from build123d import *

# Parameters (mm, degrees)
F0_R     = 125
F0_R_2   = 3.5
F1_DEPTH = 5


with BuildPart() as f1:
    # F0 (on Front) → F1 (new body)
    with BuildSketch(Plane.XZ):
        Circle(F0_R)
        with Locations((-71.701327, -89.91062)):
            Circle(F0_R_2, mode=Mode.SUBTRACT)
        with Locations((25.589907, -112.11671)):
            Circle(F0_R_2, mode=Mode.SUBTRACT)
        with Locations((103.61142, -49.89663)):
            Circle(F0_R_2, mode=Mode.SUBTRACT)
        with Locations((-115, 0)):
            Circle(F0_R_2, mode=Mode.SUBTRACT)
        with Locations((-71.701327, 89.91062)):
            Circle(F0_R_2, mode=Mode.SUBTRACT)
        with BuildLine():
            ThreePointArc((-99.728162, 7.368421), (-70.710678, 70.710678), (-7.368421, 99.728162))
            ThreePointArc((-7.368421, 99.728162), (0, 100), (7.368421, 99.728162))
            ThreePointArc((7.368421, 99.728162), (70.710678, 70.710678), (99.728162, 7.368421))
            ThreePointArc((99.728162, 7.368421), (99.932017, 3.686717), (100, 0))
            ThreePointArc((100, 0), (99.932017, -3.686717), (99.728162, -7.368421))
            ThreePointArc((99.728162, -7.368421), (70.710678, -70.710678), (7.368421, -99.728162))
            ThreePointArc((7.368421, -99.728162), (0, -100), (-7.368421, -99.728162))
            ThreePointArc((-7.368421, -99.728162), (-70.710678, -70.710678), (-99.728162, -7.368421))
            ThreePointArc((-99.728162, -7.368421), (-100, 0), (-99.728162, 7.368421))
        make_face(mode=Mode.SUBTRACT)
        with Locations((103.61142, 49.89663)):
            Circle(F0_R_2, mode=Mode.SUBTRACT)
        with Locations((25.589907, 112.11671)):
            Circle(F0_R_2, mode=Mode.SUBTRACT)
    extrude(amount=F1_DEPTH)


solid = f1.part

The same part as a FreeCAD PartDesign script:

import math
import FreeCAD as App
import Part
import Sketcher

V = App.Vector
Q = App.Units.Quantity

doc = App.newDocument("Part")
params = doc.addObject("Spreadsheet::Sheet", "Params")
for row, (alias, value) in enumerate([
    ("sketch1_diameter", "250 mm"),
    ("sketch1_diameter2", "7 mm"),
    ("sketch1_diameter3", "7 mm"),
    ("sketch1_diameter4", "7 mm"),
    ("sketch1_diameter5", "7 mm"),
    ("pad1_length", "5 mm"),
], start=1):
    params.set(f"A{row}", alias)
    params.set(f"B{row}", "=" + value)
    params.setAlias(f"B{row}", alias)

body = doc.addObject("PartDesign::Body", "Body")

# Sketch on XZ plane
sketch1 = body.newObject("Sketcher::SketchObject", "Sketch")
sketch1.AttachmentSupport = (doc.getObject("XZ_Plane"), [""])
sketch1.MapMode = "FlatFace"
sketch1.addGeometry([
    Part.Circle(V(0, 0, 0), V(0, 0, 1), 125),  # 0
    Part.Circle(V(-71.701327, -89.91062, 0), V(0, 0, 1), 3.5),  # 1
    Part.Circle(V(-115, 0, 0), V(0, 0, 1), 3.5),  # 2
    Part.Circle(V(25.589907, -112.11671, 0), V(0, 0, 1), 3.5),  # 3
    Part.ArcOfCircle(Part.Circle(V(-0.00014, 0, 0), V(0, 0, 1), 99.99986), math.radians(175.77437), math.radians(184.22563)),  # 4
    Part.ArcOfCircle(Part.Circle(V(-0.000001, 0.000001, 0), V(0, 0, 1), 99.999999), math.radians(94.225624), math.radians(175.774376)),  # 5
    Part.ArcOfCircle(Part.Circle(V(0, 0.00014, 0), V(0, 0, 1), 99.99986), math.radians(85.77437), math.radians(94.22563)),  # 6
    Part.ArcOfCircle(Part.Circle(V(0.000001, 0.000001, 0), V(0, 0, 1), 99.999999), math.radians(4.225624), math.radians(85.774376)),  # 7
    Part.ArcOfCircle(Part.Circle(V(-0.000426, -0.000021, 0), V(0, 0, 1), 100.000426), math.radians(0.000012), math.radians(4.225618)),  # 8
    Part.ArcOfCircle(Part.Circle(V(-0.000426, 0.000021, 0), V(0, 0, 1), 100.000426), math.radians(-4.225618), math.radians(-0.000012)),  # 9
    Part.ArcOfCircle(Part.Circle(V(0.000001, -0.000001, 0), V(0, 0, 1), 99.999999), math.radians(-85.774376), math.radians(-4.225624)),  # 10
    Part.ArcOfCircle(Part.Circle(V(0, -0.00014, 0), V(0, 0, 1), 99.99986), math.radians(-94.22563), math.radians(-85.77437)),  # 11
    Part.ArcOfCircle(Part.Circle(V(-0.000001, -0.000001, 0), V(0, 0, 1), 99.999999), math.radians(-175.774376), math.radians(-94.225624)),  # 12
    Part.Circle(V(103.61142, -49.89663, 0), V(0, 0, 1), 3.5),  # 13
    Part.Circle(V(-71.701327, 89.91062, 0), V(0, 0, 1), 3.5),  # 14
    Part.Circle(V(103.61142, 49.89663, 0), V(0, 0, 1), 3.5),  # 15
    Part.Circle(V(25.589907, 112.11671, 0), V(0, 0, 1), 3.5),  # 16
], False)
sketch1.addConstraint([
    Sketcher.Constraint("Coincident", 4, 1, 5, 2),
    Sketcher.Constraint("Coincident", 5, 1, 6, 2),
    Sketcher.Constraint("Coincident", 6, 1, 7, 2),
    Sketcher.Constraint("Coincident", 7, 1, 8, 2),
    Sketcher.Constraint("Coincident", 8, 1, 9, 2),
    Sketcher.Constraint("Coincident", 9, 1, 10, 2),
    Sketcher.Constraint("Coincident", 10, 1, 11, 2),
    Sketcher.Constraint("Coincident", 11, 1, 12, 2),
    Sketcher.Constraint("Coincident", 12, 1, 4, 2),
    Sketcher.Constraint("Coincident", 0, 3, -1, 1),
    Sketcher.Constraint("Coincident", 5, 3, -1, 1),
    Sketcher.Constraint("Coincident", 7, 3, -1, 1),
    Sketcher.Constraint("Coincident", 10, 3, -1, 1),
    Sketcher.Constraint("Coincident", 12, 3, -1, 1),
    Sketcher.Constraint("PointOnObject", 2, 3, -1),
    Sketcher.Constraint("PointOnObject", 4, 3, -1),
    Sketcher.Constraint("PointOnObject", 6, 3, -2),
    Sketcher.Constraint("PointOnObject", 11, 3, -2),
    Sketcher.Constraint("PointOnObject", 8, 1, -1),
    Sketcher.Constraint("Diameter", 0, Q("250 mm")),
    Sketcher.Constraint("Diameter", 1, Q("7 mm")),
    Sketcher.Constraint("Diameter", 2, Q("7 mm")),
    Sketcher.Constraint("Diameter", 3, Q("7 mm")),
    Sketcher.Constraint("Diameter", 13, Q("7 mm")),
    Sketcher.Constraint("Diameter", 14, Q("7 mm")),
    Sketcher.Constraint("Diameter", 15, Q("7 mm")),
    Sketcher.Constraint("Diameter", 16, Q("7 mm")),
    Sketcher.Constraint("Radius", 5, Q("99.999999 mm")),
    Sketcher.Constraint("DistanceX", 2, 3, -1, 1, Q("115 mm")),
    Sketcher.Constraint("DistanceX", -1, 1, 8, 1, Q("100 mm")),
    Sketcher.Constraint("Radius", 4, Q("99.99986 mm")),
    Sketcher.Constraint("Radius", 6, Q("99.99986 mm")),
    Sketcher.Constraint("Radius", 11, Q("99.99986 mm")),
    Sketcher.Constraint("Radius", 8, Q("100.000426 mm")),
    Sketcher.Constraint("Radius", 9, Q("100.000426 mm")),
    Sketcher.Constraint("DistanceX", 14, 3, 9, 3, Q("71.700901 mm")),
    Sketcher.Constraint("DistanceY", 9, 3, 14, 3, Q("89.910599 mm")),
    Sketcher.Constraint("DistanceY", 4, 1, 14, 3, Q("82.542199 mm")),
    Sketcher.Constraint("DistanceY", 1, 3, 12, 1, Q("82.542199 mm")),
    Sketcher.Constraint("DistanceY", 12, 1, 8, 3, Q("7.3684 mm")),
    Sketcher.Constraint("DistanceY", 3, 3, -1, 1, Q("112.11671 mm")),
    Sketcher.Constraint("DistanceX", -1, 1, 13, 3, Q("103.61142 mm")),
    Sketcher.Constraint("DistanceY", 13, 3, -1, 1, Q("49.89663 mm")),
    Sketcher.Constraint("DistanceX", -1, 1, 15, 3, Q("103.61142 mm")),
    Sketcher.Constraint("DistanceY", -1, 1, 15, 3, Q("49.89663 mm")),
    Sketcher.Constraint("DistanceY", -1, 1, 16, 3, Q("112.11671 mm")),
    Sketcher.Constraint("DistanceX", 5, 1, -1, 1, Q("7.368421 mm")),
    Sketcher.Constraint("DistanceX", -1, 1, 6, 1, Q("7.368421 mm")),
    Sketcher.Constraint("DistanceY", -1, 1, 7, 1, Q("7.368421 mm")),
    Sketcher.Constraint("DistanceY", 9, 1, -1, 1, Q("7.368421 mm")),
    Sketcher.Constraint("DistanceX", -1, 1, 10, 1, Q("7.368421 mm")),
    Sketcher.Constraint("DistanceX", 11, 1, -1, 1, Q("7.368421 mm")),
    Sketcher.Constraint("DistanceX", 5, 1, 16, 3, Q("32.958328 mm")),
    Sketcher.Constraint("DistanceX", 1, 3, 10, 1, Q("79.069748 mm")),
    Sketcher.Constraint("DistanceX", 11, 1, 3, 3, Q("32.958328 mm")),
])
sketch1.setExpression("Constraints[19]", "Params.sketch1_diameter")
sketch1.setExpression("Constraints[20]", "Params.sketch1_diameter2")
sketch1.setExpression("Constraints[21]", "Params.sketch1_diameter3")
sketch1.setExpression("Constraints[22]", "Params.sketch1_diameter4")
sketch1.setExpression("Constraints[23]", "Params.sketch1_diameter5")
pad1 = body.newObject("PartDesign::Pad", "Pad")
pad1.Profile = sketch1
pad1.setExpression("Length", "Params.pad1_length")

doc.recompute()
